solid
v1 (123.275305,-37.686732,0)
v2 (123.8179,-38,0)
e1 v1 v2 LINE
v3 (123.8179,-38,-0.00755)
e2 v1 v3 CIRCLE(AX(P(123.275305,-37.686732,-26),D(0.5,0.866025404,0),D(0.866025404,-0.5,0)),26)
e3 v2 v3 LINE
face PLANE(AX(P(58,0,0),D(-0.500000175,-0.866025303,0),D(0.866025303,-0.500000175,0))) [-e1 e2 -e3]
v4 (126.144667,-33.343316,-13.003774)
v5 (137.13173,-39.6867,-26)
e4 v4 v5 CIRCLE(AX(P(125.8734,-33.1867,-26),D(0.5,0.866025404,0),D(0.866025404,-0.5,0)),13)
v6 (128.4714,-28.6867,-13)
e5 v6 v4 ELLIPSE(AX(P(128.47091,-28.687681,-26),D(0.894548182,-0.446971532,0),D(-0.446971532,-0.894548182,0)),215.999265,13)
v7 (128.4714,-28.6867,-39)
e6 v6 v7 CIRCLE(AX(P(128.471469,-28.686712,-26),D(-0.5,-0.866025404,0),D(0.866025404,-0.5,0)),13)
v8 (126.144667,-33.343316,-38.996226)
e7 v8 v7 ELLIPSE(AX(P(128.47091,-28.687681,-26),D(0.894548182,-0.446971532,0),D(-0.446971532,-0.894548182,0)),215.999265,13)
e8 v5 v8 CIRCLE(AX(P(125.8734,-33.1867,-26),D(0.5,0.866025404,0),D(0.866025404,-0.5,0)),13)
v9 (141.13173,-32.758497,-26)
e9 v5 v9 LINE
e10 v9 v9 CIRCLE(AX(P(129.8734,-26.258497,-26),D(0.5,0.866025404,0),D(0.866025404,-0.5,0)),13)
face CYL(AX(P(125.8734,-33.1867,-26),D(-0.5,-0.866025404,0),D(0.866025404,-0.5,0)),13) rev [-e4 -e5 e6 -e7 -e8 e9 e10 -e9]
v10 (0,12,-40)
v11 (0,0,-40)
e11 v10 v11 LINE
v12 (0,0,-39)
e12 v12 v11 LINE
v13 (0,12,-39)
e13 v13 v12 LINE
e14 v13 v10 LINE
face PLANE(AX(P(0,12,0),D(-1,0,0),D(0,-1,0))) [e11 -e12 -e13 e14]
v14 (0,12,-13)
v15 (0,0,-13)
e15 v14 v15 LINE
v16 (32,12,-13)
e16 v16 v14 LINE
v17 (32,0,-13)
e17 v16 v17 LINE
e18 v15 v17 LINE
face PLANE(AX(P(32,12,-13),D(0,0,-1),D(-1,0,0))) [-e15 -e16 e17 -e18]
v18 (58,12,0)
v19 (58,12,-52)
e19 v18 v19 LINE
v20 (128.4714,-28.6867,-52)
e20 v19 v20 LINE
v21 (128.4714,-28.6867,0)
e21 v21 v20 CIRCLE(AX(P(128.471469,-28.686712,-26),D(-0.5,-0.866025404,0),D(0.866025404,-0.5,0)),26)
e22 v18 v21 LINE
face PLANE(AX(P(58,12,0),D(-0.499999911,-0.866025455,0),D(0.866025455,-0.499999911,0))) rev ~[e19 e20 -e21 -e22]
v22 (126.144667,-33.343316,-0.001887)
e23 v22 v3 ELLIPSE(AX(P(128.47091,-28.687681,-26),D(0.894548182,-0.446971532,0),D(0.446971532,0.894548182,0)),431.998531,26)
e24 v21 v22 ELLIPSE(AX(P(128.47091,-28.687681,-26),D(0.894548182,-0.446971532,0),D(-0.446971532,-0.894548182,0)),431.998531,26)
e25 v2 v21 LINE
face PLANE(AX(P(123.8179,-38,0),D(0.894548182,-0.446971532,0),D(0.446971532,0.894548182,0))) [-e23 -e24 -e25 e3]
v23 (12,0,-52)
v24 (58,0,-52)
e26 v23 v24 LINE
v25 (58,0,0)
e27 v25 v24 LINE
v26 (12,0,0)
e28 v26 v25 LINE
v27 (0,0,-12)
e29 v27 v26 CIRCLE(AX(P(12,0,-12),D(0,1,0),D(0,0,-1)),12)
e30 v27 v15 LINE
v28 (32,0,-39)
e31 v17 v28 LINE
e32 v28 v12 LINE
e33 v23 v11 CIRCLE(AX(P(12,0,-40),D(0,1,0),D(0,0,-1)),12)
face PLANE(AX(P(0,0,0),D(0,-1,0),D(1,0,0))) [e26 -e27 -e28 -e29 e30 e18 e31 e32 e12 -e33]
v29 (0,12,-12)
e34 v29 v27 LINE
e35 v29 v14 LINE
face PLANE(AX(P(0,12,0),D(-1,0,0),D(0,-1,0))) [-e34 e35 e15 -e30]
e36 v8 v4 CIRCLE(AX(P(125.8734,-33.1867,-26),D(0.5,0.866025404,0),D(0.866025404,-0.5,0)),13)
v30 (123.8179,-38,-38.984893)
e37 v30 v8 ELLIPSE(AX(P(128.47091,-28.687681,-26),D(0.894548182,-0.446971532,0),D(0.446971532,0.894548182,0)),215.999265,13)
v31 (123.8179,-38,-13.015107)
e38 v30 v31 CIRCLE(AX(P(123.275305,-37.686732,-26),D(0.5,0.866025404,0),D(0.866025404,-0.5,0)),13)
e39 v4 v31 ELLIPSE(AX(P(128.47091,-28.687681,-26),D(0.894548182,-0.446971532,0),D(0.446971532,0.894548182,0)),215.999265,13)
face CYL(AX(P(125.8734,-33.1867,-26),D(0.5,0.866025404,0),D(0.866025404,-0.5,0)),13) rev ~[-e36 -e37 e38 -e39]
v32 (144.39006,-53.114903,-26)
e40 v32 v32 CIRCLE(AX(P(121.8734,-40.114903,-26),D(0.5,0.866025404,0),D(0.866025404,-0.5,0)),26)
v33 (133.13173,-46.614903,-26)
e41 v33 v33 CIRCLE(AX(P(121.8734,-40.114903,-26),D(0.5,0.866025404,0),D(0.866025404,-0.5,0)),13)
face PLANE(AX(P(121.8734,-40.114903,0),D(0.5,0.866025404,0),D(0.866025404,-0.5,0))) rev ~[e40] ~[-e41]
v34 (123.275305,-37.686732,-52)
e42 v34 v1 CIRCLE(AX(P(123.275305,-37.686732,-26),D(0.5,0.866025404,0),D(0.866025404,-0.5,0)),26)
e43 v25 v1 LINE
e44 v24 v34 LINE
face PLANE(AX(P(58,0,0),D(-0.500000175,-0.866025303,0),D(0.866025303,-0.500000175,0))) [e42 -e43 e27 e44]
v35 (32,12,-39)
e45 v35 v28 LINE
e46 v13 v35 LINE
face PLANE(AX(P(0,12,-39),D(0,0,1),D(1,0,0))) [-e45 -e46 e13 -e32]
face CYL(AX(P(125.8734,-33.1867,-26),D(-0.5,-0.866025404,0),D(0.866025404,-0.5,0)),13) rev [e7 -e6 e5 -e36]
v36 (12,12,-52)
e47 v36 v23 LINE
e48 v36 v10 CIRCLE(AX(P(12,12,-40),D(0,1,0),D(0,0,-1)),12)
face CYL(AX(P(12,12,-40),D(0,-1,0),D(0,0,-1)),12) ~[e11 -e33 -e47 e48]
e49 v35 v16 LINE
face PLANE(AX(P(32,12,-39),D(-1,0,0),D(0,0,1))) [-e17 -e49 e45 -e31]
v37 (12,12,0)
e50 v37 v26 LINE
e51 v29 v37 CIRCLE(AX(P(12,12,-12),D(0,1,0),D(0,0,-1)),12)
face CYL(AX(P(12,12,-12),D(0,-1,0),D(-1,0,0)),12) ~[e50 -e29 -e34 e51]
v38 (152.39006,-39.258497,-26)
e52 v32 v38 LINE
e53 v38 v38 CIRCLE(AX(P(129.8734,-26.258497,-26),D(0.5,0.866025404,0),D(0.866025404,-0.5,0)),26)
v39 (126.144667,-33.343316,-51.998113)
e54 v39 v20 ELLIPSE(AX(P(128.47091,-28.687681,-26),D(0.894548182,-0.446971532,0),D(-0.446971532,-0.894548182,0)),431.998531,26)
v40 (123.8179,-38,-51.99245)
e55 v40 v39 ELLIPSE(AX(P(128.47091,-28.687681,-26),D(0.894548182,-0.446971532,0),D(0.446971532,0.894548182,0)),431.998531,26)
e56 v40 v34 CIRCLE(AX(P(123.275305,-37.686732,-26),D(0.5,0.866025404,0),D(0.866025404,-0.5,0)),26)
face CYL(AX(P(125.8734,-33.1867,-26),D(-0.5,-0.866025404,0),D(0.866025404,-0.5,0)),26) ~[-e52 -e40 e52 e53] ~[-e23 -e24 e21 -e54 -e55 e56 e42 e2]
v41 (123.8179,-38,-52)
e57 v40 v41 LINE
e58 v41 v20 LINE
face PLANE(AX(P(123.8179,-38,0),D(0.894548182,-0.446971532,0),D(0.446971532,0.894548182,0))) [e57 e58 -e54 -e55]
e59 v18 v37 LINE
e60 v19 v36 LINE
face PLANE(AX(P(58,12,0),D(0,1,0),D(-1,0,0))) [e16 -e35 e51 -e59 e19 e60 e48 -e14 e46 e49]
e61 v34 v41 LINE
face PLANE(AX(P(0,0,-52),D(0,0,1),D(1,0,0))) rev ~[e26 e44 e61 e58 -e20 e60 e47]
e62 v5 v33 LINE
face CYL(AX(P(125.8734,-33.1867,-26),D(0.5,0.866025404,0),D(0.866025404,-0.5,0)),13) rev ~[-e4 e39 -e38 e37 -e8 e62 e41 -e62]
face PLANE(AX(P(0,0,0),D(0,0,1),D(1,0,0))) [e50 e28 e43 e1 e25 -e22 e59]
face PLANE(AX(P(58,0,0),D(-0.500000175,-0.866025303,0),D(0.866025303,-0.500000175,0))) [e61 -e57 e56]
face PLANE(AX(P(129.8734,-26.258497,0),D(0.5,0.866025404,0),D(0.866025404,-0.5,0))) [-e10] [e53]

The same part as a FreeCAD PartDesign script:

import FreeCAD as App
import Part
import Sketcher

V = App.Vector
Q = App.Units.Quantity


def edges_at(feature, points):
    """Names of the edges that pass closest to the given points."""
    edges = feature.Shape.Edges
    near = lambda p: min(range(len(edges)), key=lambda i: edges[i].distToShape(Part.Vertex(*p))[0])
    return sorted({f"Edge{near(p) + 1}" for p in points})

doc = App.newDocument("Part")
body = doc.addObject("PartDesign::Body", "Body")

sketch1 = body.newObject("Sketcher::SketchObject", "Sketch")
sketch1.AttachmentSupport = (doc.getObject("XY_Plane"), [""])
sketch1.MapMode = "FlatFace"
sketch1.addGeometry([
    Part.LineSegment(V(0, 12, 0), V(0, 0, 0)),
    Part.LineSegment(V(0, 0, 0), V(58, 0, 0)),
    Part.LineSegment(V(58, 0, 0), V(124, -38, 0)),
    Part.LineSegment(V(124, -38, 0), V(128, -29, 0)),
    Part.LineSegment(V(128, -29, 0), V(58, 12, 0)),
    Part.LineSegment(V(58, 12, 0), V(0, 12, 0)),
], False)
sketch1.addConstraint([
    Sketcher.Constraint("Coincident", 0, 2, 1, 1),
    Sketcher.Constraint("Coincident", 1, 2, 2, 1),
    Sketcher.Constraint("Coincident", 2, 2, 3, 1),
    Sketcher.Constraint("Coincident", 3, 2, 4, 1),
    Sketcher.Constraint("Coincident", 4, 2, 5, 1),
    Sketcher.Constraint("Coincident", 5, 2, 0, 1),
    Sketcher.Constraint("Vertical", 0),
    Sketcher.Constraint("Horizontal", 1),
    Sketcher.Constraint("Horizontal", 5),
    Sketcher.Constraint("Coincident", 0, 2, -1, 1),
    Sketcher.Constraint("Parallel", 2, 4),
    Sketcher.Constraint("Vertical", 1, 2, 4, 2),
    Sketcher.Constraint("DistanceX", 1, 1, 1, 2, 58.0),
    Sketcher.Constraint("DistanceY", 0, 2, 0, 1, 12.0),
    Sketcher.Constraint("Angle", 2, Q("-30 deg")),
    Sketcher.Constraint("Distance", 2, 76.0),
    Sketcher.Constraint("Angle", 3, Q("63.4505 deg")),
])
pad1 = body.newObject("PartDesign::Pad", "Pad")
pad1.Profile = sketch1
pad1.Length = 52
pad1.Reversed = True

sketch2 = body.newObject("Sketcher::SketchObject", "Sketch001")
sketch2.Placement = App.Placement(V(125.8734, -33.1867, 0), App.Rotation(V(0.866025404, -0.5, 0), V(0, 0, -1), V(0.5, 0.866025404, 0), "ZXY"))
sketch2.addGeometry([
    Part.Circle(V(0, 26, 0), V(0, 0, 1), 26),
    Part.Circle(V(0, 26, 0), V(0, 0, 1), 13),
], False)
sketch2.addConstraint([
    Sketcher.Constraint("Coincident", 1, 3, 0, 3),
    Sketcher.Constraint("PointOnObject", 0, 3, -2),
    Sketcher.Constraint("Diameter", 0, 52.0),
    Sketcher.Constraint("Diameter", 1, 26.0),
    Sketcher.Constraint("DistanceY", -1, 1, 0, 3, 26.0),
])
pad2 = body.newObject("PartDesign::Pad", "Pad001")
pad2.Profile = sketch2
pad2.Length = 16
pad2.Midplane = True

sketch3 = body.newObject("Sketcher::SketchObject", "Sketch002")
sketch3.Placement = App.Placement(V(125.8734, -33.1867, 0), App.Rotation(V(0.866025404, -0.5, 0), V(0, 0, -1), V(0.5, 0.866025404, 0), "ZXY"))
sketch3.addGeometry(Part.Circle(V(0, 26, 0), V(0, 0, 1), 13), False)
sketch3.addConstraint([
    Sketcher.Constraint("PointOnObject", 0, 3, -2),
    Sketcher.Constraint("Diameter", 0, 26.0),
    Sketcher.Constraint("DistanceY", -1, 1, 0, 3, 26.0),
])
pocket1 = body.newObject("PartDesign::Pocket", "Pocket")
pocket1.Profile = sketch3
pocket1.Type = "ThroughAll"
pocket1.Midplane = True

sketch4 = body.newObject("Sketcher::SketchObject", "Sketch003")
sketch4.AttachmentSupport = (doc.getObject("XZ_Plane"), [""])
sketch4.MapMode = "FlatFace"
sketch4.AttachmentOffset = App.Placement(V(0, 0, -12), App.Rotation())
sketch4.addGeometry([
    Part.LineSegment(V(0, -39, 0), V(0, -13, 0)),
    Part.LineSegment(V(0, -13, 0), V(32, -13, 0)),
    Part.LineSegment(V(32, -13, 0), V(32, -39, 0)),
    Part.LineSegment(V(32, -39, 0), V(0, -39, 0)),
], False)
sketch4.addConstraint([
    Sketcher.Constraint("Coincident", 0, 2, 1, 1),
    Sketcher.Constraint("Coincident", 1, 2, 2, 1),
    Sketcher.Constraint("Coincident", 2, 2, 3, 1),
    Sketcher.Constraint("Coincident", 3, 2, 0, 1),
    Sketcher.Constraint("Vertical", 0),
    Sketcher.Constraint("Horizontal", 1),
    Sketcher.Constraint("Vertical", 2),
    Sketcher.Constraint("Horizontal", 3),
    Sketcher.Constraint("PointOnObject", 0, 2, -2),
    Sketcher.Constraint("DistanceX", 1, 1, 1, 2, 32.0),
    Sketcher.Constraint("DistanceY", 0, 1, 0, 2, 26.0),
    Sketcher.Constraint("DistanceY", 0, 2, -1, 1, 13.0),
])
pocket2 = body.newObject("PartDesign::Pocket", "Pocket001")
pocket2.Profile = sketch4
pocket2.Type = "ThroughAll"
pocket2.Reversed = True
doc.recompute()

fillet = body.newObject("PartDesign::Fillet", "Fillet")
fillet.Base = (pocket2, edges_at(pocket2, [(0, 6, 0), (0, 6, -52)]))
fillet.Radius = 12

doc.recompute()
